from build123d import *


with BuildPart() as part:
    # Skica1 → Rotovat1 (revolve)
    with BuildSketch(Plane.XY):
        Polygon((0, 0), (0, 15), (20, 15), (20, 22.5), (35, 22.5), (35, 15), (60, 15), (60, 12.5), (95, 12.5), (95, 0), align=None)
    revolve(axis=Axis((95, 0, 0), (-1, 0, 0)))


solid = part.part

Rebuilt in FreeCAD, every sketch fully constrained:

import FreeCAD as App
import Part
import Sketcher
from FreeCAD import Vector
Q = App.Units.Quantity

doc = App.newDocument("Part")
body = doc.addObject("PartDesign::Body", "Body")

# Sketch on XY plane
sketch1 = body.newObject("Sketcher::SketchObject", "Sketch")
sketch1.AttachmentSupport = (doc.getObject("XY_Plane"), [""])
sketch1.MapMode = "FlatFace"
sketch1.addGeometry([
    Part.LineSegment(Vector(0, 15, 0), Vector(0, 0, 0)),  # 0
    Part.LineSegment(Vector(0, 0, 0), Vector(95, 0, 0)),  # 1
    Part.LineSegment(Vector(95, 0, 0), Vector(95, 12.5, 0)),  # 2
    Part.LineSegment(Vector(95, 12.5, 0), Vector(60, 12.5, 0)),  # 3
    Part.LineSegment(Vector(60, 12.5, 0), Vector(60, 15, 0)),  # 4
    Part.LineSegment(Vector(60, 15, 0), Vector(35, 15, 0)),  # 5
    Part.LineSegment(Vector(35, 15, 0), Vector(35, 22.5, 0)),  # 6
    Part.LineSegment(Vector(35, 22.5, 0), Vector(20, 22.5, 0)),  # 7
    Part.LineSegment(Vector(20, 22.5, 0), Vector(20, 15, 0)),  # 8
    Part.LineSegment(Vector(20, 15, 0), Vector(0, 15, 0)),  # 9
], False)
sketch1.addConstraint([
    Sketcher.Constraint("Coincident", 0, 2, 1, 1),
    Sketcher.Constraint("Coincident", 1, 2, 2, 1),
    Sketcher.Constraint("Coincident", 2, 2, 3, 1),
    Sketcher.Constraint("Coincident", 3, 2, 4, 1),
    Sketcher.Constraint("Coincident", 4, 2, 5, 1),
    Sketcher.Constraint("Coincident", 5, 2, 6, 1),
    Sketcher.Constraint("Coincident", 6, 2, 7, 1),
    Sketcher.Constraint("Coincident", 7, 2, 8, 1),
    Sketcher.Constraint("Coincident", 8, 2, 9, 1),
    Sketcher.Constraint("Coincident", 9, 2, 0, 1),
    Sketcher.Constraint("Vertical", 0),
    Sketcher.Constraint("Horizontal", 1),
    Sketcher.Constraint("Vertical", 2),
    Sketcher.Constraint("Horizontal", 3),
    Sketcher.Constraint("Vertical", 4),
    Sketcher.Constraint("Horizontal", 5),
    Sketcher.Constraint("Vertical", 6),
    Sketcher.Constraint("Horizontal", 7),
    Sketcher.Constraint("Vertical", 8),
    Sketcher.Constraint("Horizontal", 9),
    Sketcher.Constraint("Coincident", 0, 2, -1, 1),
    Sketcher.Constraint("Horizontal", 5, 2, 8, 2),
    Sketcher.Constraint("Equal", 7, 0),
    Sketcher.Constraint("DistanceX", 1, 1, 1, 2, Q("95 mm")),
    Sketcher.Constraint("DistanceX", 3, 2, 3, 1, Q("35 mm")),
    Sketcher.Constraint("DistanceX", 5, 2, 5, 1, Q("25 mm")),
    Sketcher.Constraint("DistanceX", 7, 2, 7, 1, Q("15 mm")),
    Sketcher.Constraint("DistanceY", 2, 1, 2, 2, Q("12.5 mm")),
    Sketcher.Constraint("DistanceY", 6, 1, 6, 2, Q("7.5 mm")),
])
revolution = body.newObject("PartDesign::Revolution", "Revolution")
revolution.Profile = sketch1
revolution.ReferenceAxis = (sketch1, ["H_Axis"])
revolution.Angle = 360

doc.recompute()
